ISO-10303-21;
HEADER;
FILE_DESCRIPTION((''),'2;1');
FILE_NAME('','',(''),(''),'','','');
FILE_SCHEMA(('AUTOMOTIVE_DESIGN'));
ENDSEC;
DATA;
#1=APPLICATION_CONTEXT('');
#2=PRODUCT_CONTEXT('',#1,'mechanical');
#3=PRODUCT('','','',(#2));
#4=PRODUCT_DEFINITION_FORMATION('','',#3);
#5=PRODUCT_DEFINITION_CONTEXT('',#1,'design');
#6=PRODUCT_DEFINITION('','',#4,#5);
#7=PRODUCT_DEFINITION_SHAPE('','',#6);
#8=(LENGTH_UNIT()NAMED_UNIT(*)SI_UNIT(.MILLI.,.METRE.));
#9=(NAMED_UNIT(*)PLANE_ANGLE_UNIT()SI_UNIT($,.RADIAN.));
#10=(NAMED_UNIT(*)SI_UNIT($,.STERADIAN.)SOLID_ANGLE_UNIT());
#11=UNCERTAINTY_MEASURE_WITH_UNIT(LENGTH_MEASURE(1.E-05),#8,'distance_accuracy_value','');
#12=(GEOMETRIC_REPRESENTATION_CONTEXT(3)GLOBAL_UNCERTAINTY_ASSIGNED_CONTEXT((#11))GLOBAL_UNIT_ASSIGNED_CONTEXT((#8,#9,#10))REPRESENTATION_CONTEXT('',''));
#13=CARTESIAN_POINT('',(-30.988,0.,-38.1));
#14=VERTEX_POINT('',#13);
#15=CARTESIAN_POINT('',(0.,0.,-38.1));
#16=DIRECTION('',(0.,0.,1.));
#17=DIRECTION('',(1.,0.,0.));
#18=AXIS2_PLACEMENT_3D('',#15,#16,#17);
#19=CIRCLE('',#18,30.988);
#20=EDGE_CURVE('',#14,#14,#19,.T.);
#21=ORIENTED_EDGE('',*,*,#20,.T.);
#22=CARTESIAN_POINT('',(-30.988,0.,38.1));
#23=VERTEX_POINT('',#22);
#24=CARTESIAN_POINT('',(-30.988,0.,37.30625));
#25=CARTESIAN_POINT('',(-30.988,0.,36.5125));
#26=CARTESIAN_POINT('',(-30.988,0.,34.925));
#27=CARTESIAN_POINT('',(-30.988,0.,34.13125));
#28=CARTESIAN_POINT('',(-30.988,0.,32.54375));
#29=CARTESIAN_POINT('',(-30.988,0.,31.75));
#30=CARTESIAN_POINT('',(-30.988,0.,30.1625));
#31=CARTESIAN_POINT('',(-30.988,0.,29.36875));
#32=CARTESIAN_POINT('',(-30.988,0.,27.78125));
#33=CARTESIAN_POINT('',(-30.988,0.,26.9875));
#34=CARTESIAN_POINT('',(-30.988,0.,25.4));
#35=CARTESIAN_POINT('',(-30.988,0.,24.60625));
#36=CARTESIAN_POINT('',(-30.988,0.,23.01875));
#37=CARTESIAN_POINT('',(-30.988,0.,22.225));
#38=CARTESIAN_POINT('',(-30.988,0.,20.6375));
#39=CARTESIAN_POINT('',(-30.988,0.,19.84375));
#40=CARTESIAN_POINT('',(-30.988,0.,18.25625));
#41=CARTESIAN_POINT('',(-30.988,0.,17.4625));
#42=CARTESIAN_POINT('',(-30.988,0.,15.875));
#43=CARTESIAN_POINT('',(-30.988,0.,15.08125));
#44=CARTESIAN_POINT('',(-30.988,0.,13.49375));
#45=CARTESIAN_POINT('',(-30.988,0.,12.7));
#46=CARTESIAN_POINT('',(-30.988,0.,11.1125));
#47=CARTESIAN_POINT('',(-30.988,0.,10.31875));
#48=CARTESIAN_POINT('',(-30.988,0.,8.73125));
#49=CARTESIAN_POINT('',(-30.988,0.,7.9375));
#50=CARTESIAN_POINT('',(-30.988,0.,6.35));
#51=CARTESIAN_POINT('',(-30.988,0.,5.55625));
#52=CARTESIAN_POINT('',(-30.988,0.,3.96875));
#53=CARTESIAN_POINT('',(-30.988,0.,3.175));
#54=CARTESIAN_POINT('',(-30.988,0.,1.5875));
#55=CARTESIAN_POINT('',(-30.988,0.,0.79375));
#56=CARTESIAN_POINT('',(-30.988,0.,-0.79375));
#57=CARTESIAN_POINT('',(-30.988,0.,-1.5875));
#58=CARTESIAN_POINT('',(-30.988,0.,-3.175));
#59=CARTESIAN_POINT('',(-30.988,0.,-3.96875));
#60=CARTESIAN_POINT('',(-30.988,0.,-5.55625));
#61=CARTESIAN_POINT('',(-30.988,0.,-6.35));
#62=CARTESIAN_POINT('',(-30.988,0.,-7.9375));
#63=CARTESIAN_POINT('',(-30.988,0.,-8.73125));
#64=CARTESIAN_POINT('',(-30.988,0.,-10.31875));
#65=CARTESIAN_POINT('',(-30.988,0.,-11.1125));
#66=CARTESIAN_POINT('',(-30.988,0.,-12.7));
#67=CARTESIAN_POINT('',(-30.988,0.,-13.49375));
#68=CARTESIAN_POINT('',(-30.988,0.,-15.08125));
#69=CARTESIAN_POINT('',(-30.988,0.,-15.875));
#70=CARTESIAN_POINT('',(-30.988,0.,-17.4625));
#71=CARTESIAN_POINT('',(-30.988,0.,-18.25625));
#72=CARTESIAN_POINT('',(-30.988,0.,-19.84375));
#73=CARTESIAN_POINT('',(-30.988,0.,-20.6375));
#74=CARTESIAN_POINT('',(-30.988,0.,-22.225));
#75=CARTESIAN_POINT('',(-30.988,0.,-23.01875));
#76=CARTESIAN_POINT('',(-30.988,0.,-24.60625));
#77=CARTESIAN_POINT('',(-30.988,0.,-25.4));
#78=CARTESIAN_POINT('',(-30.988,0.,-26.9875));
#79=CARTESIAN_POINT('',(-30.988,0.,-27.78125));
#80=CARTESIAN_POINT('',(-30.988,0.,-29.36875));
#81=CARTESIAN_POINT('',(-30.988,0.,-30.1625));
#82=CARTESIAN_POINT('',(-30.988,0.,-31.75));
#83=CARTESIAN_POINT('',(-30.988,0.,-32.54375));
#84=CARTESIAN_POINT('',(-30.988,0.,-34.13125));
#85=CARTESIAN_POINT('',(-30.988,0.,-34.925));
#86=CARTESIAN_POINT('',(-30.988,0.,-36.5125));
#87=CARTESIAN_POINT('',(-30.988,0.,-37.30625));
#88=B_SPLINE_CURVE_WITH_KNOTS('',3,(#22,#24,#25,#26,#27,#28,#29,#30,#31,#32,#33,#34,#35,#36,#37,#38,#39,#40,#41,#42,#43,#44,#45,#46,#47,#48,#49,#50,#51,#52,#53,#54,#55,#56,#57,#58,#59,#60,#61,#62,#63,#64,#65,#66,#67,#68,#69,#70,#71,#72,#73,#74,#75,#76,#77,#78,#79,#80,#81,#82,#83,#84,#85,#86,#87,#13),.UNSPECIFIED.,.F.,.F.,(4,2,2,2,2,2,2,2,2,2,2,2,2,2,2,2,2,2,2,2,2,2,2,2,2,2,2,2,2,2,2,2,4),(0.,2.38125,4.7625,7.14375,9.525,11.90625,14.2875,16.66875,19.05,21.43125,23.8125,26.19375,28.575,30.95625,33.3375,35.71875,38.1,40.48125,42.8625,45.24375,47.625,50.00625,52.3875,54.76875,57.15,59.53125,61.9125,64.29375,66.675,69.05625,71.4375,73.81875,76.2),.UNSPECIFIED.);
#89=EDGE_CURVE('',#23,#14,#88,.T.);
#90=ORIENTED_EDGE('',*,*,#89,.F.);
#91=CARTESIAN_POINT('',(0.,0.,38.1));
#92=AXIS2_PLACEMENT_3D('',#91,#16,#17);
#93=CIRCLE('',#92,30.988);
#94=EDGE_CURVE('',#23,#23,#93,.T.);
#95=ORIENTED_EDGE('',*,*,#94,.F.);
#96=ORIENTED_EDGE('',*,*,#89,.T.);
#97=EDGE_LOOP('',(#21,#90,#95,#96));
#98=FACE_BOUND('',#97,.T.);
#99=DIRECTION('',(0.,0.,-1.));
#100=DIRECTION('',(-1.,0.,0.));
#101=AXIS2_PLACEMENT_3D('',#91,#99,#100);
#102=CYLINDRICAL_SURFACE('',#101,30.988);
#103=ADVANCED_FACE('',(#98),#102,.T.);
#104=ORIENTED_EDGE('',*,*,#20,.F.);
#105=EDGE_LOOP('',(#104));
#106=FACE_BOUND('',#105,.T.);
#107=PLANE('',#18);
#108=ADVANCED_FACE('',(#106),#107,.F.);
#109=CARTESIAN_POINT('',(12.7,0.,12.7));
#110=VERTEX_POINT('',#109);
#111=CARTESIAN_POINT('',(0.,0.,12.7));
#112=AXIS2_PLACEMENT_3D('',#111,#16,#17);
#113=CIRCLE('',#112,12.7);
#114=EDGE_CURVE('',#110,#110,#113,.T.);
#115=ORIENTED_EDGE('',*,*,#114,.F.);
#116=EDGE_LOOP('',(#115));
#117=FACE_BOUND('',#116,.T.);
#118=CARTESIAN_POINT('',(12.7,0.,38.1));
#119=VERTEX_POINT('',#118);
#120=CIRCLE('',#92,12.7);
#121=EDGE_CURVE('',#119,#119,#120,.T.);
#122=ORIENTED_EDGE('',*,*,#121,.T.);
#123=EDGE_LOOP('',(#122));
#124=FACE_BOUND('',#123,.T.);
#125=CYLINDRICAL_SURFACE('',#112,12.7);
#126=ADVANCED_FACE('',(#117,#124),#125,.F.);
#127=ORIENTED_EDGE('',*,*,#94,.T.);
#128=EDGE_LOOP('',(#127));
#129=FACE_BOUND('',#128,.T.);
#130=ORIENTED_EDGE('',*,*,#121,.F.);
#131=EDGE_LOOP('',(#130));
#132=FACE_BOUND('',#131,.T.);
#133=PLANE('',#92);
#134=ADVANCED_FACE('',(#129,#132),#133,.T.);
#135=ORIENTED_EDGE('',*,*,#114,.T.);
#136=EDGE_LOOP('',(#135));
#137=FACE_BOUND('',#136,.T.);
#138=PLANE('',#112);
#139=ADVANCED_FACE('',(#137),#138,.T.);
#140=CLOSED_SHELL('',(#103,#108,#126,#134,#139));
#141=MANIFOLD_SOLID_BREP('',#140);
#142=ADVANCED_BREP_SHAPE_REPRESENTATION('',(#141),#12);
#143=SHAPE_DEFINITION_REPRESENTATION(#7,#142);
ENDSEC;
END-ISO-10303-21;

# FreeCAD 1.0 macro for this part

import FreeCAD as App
import Part
import Sketcher

V = App.Vector
Q = App.Units.Quantity

doc = App.newDocument("Part")
body = doc.addObject("PartDesign::Body", "Body")

# Sketch on XY plane
sketch1 = doc.addObject("Sketcher::SketchObject", "Sketch")
body.addObject(sketch1)
sketch1.AttachmentSupport = (doc.XY_Plane, [""])
sketch1.MapMode = "FlatFace"
sketch1.addGeometry(Part.Circle(V(0, 0, 0), V(0, 0, 1), 31), False)
sketch1.addConstraint(Sketcher.Constraint("Coincident", 0, 3, -1, 1))
sketch1.addConstraint(Sketcher.Constraint("Diameter", 0, Q("2.44 in")))
pad1 = doc.addObject("PartDesign::Pad", "Pad")
body.addObject(pad1)
pad1.Profile = sketch1
pad1.Length = Q("3 in")
pad1.Midplane = True

# Sketch on XY plane
sketch2 = doc.addObject("Sketcher::SketchObject", "Sketch001")
body.addObject(sketch2)
sketch2.AttachmentSupport = (doc.XY_Plane, [""])
sketch2.MapMode = "FlatFace"
sketch2.AttachmentOffset = App.Placement(V(0, 0, 1.5 * 25.4), App.Rotation())
sketch2.addGeometry(Part.Circle(V(0, 0, 0), V(0, 0, 1), 13), False)
sketch2.addConstraint(Sketcher.Constraint("Coincident", 0, 3, -1, 1))
sketch2.addConstraint(Sketcher.Constraint("Diameter", 0, Q("1 in")))
pocket1 = doc.addObject("PartDesign::Pocket", "Pocket")
body.addObject(pocket1)
pocket1.Profile = sketch2
pocket1.Length = Q("1 in")

doc.recompute()
